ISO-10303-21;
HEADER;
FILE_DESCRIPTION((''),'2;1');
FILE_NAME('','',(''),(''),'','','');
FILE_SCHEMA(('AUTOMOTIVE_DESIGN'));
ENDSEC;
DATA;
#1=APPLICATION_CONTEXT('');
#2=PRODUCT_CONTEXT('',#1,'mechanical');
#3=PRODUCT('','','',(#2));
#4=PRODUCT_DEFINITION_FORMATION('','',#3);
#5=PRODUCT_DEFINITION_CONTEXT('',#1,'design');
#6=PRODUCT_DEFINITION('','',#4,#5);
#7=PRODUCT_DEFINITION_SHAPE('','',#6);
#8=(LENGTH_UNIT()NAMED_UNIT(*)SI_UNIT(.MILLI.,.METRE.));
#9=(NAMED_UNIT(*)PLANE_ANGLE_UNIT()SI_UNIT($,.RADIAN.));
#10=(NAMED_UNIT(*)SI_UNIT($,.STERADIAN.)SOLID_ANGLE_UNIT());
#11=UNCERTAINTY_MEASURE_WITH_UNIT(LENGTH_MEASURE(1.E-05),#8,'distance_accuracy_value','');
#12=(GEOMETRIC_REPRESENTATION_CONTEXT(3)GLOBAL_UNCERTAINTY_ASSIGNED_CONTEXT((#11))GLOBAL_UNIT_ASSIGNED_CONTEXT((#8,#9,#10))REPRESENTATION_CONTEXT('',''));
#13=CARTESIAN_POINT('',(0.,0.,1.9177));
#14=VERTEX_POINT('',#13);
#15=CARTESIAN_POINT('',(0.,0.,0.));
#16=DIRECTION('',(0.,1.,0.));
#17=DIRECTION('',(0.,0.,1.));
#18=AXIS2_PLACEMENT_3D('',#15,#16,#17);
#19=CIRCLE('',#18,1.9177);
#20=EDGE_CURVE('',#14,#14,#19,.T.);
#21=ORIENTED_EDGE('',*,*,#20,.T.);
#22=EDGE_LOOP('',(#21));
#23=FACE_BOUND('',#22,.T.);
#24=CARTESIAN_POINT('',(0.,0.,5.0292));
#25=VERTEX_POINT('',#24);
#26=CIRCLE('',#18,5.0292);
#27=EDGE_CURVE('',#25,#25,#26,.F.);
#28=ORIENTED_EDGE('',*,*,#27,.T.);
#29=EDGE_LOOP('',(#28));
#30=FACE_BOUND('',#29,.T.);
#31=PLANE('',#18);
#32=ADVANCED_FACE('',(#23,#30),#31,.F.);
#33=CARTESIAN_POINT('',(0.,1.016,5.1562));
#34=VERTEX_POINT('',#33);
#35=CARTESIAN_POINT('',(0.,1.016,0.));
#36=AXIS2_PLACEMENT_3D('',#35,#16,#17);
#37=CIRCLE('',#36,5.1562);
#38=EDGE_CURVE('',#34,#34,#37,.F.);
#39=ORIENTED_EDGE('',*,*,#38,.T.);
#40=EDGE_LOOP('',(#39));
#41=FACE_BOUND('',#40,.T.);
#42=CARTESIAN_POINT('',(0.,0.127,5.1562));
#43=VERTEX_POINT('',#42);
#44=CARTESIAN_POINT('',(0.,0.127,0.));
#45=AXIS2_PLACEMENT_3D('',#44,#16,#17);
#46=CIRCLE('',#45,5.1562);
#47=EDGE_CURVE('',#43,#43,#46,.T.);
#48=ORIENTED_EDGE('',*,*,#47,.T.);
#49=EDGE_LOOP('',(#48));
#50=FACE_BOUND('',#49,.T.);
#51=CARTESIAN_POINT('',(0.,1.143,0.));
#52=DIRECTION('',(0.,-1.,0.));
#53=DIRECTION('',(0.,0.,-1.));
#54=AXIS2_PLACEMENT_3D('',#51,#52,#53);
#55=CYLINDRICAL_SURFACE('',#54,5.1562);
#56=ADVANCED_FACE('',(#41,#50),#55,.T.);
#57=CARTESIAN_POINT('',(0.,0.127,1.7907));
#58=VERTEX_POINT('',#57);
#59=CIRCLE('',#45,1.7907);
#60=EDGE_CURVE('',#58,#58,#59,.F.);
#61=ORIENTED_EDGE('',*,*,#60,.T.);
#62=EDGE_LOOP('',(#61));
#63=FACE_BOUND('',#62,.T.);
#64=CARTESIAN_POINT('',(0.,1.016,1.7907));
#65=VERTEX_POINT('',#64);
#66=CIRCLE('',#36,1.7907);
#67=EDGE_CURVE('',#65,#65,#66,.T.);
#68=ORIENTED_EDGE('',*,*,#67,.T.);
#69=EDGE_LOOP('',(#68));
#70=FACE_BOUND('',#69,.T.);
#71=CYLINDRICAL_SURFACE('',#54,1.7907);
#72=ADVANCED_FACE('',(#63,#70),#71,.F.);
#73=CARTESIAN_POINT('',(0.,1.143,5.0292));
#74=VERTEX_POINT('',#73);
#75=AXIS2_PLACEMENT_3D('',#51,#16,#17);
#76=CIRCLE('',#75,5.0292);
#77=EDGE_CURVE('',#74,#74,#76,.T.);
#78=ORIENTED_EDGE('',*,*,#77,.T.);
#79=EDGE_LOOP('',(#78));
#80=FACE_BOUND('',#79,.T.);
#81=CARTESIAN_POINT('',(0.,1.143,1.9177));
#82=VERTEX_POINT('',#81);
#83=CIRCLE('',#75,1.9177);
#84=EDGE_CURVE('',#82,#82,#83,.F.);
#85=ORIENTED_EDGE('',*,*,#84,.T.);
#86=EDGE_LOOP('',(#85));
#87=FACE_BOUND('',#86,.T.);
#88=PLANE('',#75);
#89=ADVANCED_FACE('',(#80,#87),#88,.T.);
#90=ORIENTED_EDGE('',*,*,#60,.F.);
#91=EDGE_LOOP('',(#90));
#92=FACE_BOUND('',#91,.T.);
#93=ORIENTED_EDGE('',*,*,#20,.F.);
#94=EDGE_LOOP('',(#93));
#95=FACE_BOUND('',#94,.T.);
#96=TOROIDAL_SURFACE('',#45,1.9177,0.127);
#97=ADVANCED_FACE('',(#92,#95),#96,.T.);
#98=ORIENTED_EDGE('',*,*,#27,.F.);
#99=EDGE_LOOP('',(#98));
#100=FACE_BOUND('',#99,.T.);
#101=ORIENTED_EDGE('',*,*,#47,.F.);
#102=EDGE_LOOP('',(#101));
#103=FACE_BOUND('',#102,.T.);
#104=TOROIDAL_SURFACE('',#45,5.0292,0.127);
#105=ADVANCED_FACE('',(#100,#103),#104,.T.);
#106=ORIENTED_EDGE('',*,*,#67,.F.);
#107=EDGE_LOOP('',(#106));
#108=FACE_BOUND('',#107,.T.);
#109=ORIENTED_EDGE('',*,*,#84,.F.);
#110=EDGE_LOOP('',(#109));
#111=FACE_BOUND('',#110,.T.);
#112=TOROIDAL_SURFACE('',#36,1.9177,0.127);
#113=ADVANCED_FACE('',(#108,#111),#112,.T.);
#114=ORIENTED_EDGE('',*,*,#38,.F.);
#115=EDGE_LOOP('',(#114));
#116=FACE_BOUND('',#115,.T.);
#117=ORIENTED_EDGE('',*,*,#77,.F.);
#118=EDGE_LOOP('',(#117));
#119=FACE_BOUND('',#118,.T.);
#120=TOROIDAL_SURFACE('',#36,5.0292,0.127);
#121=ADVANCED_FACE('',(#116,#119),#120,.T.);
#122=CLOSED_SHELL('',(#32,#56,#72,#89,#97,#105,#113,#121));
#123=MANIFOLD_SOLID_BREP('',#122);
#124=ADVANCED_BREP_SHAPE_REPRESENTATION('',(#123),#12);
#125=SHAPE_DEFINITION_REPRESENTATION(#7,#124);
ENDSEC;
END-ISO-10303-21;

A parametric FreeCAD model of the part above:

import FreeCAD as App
import Part
import Sketcher
from FreeCAD import Vector
Q = App.Units.Quantity


def edges_at(feature, points):
    """Names of the edges that pass closest to the given points."""
    edges = feature.Shape.Edges
    near = lambda p: min(range(len(edges)), key=lambda i: edges[i].distToShape(Part.Vertex(*p))[0])
    return sorted({f"Edge{near(p) + 1}" for p in points})

doc = App.newDocument("Part")
body = doc.addObject("PartDesign::Body", "Body")

sketch1 = body.newObject("Sketcher::SketchObject", "Sketch")
sketch1.AttachmentSupport = (doc.getObject("XZ_Plane"), [""])
sketch1.MapMode = "FlatFace"
sketch1.addGeometry([
    Part.Circle(Vector(0, 0, 0), Vector(0, 0, 1), 5.2),
    Part.Circle(Vector(0, 0, 0), Vector(0, 0, 1), 1.8),
], False)
sketch1.addConstraint([
    Sketcher.Constraint("Coincident", 0, 3, -1, 1),
    Sketcher.Constraint("Coincident", 1, 3, -1, 1),
    Sketcher.Constraint("Diameter", 0, Q("0.406 in")),
    Sketcher.Constraint("Diameter", 1, Q("0.141 in")),
])
pad1 = body.newObject("PartDesign::Pad", "Pad")
pad1.Profile = sketch1
pad1.Length = Q("0.045 in")
pad1.Reversed = True
doc.recompute()

fillet = body.newObject("PartDesign::Fillet", "Fillet")
fillet.Base = (pad1, edges_at(pad1, [(-5.156, 1.143, 0)]))
fillet.Radius = Q("0.005 in")
doc.recompute()

fillet2 = body.newObject("PartDesign::Fillet", "Fillet001")
fillet2.Base = (fillet, edges_at(fillet, [(-5.156, 0, 0)]))
fillet2.Radius = Q("0.005 in")
doc.recompute()

fillet3 = body.newObject("PartDesign::Fillet", "Fillet002")
fillet3.Base = (fillet2, edges_at(fillet2, [(-1.791, 0, 0), (-1.791, 1.143, 0)]))
fillet3.Radius = Q("0.005 in")

doc.recompute()
